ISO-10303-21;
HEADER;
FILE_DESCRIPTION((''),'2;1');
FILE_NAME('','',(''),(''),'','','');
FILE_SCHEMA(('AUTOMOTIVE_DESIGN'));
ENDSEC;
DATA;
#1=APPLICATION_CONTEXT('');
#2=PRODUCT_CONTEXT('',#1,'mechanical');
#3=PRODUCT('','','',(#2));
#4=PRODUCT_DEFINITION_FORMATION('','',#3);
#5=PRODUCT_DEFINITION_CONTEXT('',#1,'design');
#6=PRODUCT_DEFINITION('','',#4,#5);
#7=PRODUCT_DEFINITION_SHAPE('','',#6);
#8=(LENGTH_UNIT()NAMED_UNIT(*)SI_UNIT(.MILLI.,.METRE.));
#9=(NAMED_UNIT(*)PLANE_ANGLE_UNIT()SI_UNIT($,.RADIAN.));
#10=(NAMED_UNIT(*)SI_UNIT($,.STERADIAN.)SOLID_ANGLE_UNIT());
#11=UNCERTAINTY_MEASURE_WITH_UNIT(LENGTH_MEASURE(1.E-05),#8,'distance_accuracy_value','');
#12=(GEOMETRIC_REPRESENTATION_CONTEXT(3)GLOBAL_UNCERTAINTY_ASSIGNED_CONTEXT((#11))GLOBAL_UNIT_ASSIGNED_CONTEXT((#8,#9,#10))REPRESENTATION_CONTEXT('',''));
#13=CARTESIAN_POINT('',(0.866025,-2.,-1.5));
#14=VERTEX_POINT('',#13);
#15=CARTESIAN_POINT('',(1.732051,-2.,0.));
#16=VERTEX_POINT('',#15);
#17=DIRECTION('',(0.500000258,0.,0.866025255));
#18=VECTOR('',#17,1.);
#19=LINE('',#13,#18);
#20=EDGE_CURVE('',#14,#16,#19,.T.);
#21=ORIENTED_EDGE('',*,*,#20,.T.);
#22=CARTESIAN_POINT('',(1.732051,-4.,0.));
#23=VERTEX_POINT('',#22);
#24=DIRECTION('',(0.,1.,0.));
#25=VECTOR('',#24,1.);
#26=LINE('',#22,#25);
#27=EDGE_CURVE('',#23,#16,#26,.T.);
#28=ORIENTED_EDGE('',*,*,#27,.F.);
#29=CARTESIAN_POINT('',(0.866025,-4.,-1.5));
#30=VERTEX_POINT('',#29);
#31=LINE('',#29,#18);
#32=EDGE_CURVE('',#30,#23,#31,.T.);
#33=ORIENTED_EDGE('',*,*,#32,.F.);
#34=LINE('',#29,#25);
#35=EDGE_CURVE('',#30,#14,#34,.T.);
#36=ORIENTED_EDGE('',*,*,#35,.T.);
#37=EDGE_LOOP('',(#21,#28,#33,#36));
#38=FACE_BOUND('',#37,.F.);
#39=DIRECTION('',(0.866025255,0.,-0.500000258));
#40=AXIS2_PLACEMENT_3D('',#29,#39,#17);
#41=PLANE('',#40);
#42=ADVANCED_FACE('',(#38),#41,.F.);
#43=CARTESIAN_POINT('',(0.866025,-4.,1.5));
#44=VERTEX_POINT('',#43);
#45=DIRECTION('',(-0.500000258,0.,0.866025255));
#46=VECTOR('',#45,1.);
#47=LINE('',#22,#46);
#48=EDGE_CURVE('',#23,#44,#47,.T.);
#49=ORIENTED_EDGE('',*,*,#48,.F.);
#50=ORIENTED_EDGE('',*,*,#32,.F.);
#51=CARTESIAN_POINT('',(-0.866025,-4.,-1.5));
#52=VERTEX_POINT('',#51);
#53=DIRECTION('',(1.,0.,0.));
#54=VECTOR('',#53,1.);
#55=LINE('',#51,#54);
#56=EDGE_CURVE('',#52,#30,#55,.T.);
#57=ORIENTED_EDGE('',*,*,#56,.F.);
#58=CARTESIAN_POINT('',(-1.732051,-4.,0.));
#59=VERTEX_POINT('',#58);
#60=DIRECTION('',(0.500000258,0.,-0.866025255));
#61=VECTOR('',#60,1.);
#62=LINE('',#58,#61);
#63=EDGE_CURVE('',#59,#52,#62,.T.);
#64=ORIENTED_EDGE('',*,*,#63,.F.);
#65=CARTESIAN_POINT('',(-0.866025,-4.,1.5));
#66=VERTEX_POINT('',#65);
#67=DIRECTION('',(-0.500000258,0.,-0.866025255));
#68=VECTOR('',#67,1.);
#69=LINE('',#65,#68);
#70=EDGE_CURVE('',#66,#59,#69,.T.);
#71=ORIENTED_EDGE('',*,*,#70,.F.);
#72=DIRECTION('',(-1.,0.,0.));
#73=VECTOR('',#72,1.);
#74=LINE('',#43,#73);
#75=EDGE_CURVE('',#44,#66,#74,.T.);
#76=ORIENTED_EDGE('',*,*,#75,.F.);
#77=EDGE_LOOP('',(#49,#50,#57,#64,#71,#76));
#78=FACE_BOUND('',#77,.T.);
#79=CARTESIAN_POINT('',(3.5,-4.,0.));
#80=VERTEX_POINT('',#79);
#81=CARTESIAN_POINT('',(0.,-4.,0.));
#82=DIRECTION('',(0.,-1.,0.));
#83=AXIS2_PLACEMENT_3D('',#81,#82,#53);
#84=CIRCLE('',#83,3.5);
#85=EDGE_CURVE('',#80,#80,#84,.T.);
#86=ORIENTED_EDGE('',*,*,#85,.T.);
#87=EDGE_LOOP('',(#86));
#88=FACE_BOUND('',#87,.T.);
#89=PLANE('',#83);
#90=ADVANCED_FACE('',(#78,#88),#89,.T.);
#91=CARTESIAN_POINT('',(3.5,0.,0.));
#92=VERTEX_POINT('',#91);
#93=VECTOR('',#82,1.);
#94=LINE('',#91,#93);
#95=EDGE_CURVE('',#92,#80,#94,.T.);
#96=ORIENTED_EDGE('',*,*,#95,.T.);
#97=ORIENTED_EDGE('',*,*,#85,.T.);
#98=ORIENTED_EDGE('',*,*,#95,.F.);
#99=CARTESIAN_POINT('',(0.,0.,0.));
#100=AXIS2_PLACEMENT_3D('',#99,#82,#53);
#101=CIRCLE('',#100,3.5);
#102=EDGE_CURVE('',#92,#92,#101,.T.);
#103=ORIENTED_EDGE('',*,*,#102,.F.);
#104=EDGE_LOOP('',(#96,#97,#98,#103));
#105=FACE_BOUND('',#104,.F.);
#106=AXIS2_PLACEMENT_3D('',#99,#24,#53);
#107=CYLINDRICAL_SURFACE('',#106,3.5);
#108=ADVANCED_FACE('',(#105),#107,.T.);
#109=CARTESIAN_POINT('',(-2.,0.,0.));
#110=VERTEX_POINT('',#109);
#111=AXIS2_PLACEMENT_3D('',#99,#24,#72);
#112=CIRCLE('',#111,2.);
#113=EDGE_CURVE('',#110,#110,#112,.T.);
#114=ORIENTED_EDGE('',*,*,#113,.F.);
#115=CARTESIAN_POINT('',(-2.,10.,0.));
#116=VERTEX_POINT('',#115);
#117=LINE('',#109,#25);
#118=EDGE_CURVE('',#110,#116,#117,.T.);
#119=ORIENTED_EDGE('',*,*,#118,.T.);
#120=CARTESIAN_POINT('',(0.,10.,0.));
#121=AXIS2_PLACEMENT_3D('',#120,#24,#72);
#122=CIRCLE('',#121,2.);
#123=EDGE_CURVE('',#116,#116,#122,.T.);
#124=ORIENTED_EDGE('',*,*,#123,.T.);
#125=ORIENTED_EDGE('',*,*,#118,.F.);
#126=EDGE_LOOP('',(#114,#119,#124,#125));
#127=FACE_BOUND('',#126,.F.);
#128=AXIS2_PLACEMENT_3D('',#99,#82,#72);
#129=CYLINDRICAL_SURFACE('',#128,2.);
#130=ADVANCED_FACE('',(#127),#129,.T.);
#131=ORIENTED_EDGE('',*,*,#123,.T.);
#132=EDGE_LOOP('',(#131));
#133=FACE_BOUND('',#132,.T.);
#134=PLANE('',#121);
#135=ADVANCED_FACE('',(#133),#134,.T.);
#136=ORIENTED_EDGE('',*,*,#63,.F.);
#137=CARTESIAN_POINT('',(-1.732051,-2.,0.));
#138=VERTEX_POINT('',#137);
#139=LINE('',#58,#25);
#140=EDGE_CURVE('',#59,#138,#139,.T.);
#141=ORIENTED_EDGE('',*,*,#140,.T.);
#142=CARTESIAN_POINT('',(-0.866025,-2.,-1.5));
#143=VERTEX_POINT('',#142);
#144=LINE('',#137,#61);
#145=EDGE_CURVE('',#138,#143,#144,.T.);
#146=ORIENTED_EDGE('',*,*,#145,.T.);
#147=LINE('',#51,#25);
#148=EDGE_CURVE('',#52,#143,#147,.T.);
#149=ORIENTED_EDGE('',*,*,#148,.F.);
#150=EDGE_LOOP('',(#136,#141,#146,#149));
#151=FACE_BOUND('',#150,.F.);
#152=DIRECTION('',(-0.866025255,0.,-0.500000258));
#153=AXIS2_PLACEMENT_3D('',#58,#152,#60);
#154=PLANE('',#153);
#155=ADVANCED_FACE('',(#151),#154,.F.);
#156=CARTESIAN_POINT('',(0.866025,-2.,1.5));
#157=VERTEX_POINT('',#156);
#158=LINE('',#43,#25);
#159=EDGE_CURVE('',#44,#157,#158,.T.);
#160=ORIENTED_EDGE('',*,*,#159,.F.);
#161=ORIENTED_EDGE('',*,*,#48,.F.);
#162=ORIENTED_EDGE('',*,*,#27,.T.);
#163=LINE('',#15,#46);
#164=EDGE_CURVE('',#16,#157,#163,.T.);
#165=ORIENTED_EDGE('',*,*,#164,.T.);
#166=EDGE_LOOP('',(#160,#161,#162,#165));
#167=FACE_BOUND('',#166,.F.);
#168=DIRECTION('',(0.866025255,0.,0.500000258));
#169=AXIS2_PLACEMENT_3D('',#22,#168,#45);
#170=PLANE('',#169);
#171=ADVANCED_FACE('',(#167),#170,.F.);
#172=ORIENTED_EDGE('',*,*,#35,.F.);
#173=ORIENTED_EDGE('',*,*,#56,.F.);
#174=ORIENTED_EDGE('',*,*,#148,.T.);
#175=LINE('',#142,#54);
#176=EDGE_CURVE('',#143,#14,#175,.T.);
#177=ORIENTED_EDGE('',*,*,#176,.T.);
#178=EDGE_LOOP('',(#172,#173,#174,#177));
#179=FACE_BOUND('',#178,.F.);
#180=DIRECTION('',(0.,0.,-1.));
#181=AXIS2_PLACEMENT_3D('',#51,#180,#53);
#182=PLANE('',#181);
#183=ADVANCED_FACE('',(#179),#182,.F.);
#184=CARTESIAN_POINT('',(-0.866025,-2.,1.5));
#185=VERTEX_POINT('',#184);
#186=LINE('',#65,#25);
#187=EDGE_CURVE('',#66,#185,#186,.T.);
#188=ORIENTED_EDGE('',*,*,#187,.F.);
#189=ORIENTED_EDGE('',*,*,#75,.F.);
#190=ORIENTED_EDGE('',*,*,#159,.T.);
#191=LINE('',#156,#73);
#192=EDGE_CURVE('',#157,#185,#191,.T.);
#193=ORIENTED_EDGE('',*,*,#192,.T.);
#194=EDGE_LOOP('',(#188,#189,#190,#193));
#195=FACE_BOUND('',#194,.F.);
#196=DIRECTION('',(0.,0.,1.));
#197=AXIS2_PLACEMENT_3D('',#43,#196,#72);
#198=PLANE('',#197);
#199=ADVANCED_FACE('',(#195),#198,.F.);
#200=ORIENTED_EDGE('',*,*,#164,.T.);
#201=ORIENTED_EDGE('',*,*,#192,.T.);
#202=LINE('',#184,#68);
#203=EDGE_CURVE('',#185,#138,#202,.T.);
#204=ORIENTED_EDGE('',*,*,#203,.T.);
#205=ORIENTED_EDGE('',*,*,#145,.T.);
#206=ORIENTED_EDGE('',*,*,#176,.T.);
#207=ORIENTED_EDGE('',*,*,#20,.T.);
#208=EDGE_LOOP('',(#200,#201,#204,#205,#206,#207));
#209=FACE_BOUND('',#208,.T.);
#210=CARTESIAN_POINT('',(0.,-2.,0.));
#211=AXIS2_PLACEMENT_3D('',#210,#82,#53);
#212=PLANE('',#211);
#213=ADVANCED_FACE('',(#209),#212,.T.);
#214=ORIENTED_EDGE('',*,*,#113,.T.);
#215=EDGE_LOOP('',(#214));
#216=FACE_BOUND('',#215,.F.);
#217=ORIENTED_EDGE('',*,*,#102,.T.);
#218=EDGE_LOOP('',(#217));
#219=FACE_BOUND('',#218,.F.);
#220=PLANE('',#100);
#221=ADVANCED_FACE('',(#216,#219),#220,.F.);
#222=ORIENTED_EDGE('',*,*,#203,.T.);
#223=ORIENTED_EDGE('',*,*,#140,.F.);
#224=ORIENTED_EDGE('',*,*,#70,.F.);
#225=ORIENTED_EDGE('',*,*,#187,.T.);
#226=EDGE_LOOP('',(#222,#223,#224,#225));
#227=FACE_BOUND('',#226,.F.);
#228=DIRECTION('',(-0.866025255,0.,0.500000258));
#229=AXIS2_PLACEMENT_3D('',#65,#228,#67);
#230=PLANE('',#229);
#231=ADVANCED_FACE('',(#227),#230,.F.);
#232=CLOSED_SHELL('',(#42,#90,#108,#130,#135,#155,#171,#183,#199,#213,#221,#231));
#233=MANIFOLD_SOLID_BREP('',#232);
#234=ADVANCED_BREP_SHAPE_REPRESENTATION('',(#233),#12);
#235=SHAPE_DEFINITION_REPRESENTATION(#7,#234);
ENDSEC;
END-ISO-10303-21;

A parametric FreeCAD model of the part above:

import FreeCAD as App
import Part
import Sketcher

V = App.Vector
Q = App.Units.Quantity

doc = App.newDocument("Part")
body = doc.addObject("PartDesign::Body", "Body")

# Sketch on XZ plane
sketch1 = body.newObject("Sketcher::SketchObject", "Sketch")
sketch1.AttachmentSupport = (doc.getObject("XZ_Plane"), [""])
sketch1.MapMode = "FlatFace"
sketch1.addGeometry(Part.Circle(V(0, 0, 0), V(0, 0, 1), 3.5), False)
sketch1.addConstraint([
    Sketcher.Constraint("Coincident", 0, 3, -1, 1),
    Sketcher.Constraint("Diameter", 0, 7.0),
])
pad1 = body.newObject("PartDesign::Pad", "Pad")
pad1.Profile = sketch1
pad1.Length = 4

# Sketch on XZ plane
sketch2 = body.newObject("Sketcher::SketchObject", "Sketch001")
sketch2.AttachmentSupport = (doc.getObject("XZ_Plane"), [""])
sketch2.MapMode = "FlatFace"
sketch2.addGeometry(Part.Circle(V(0, 0, 0), V(0, 0, 1), 2), False)
sketch2.addConstraint([
    Sketcher.Constraint("Coincident", 0, 3, -1, 1),
    Sketcher.Constraint("Diameter", 0, 4.0),
])
pad2 = body.newObject("PartDesign::Pad", "Pad001")
pad2.Profile = sketch2
pad2.Length = 10
pad2.Reversed = True

# Sketch on XZ plane
sketch3 = body.newObject("Sketcher::SketchObject", "Sketch002")
sketch3.AttachmentSupport = (doc.getObject("XZ_Plane"), [""])
sketch3.MapMode = "FlatFace"
sketch3.AttachmentOffset = App.Placement(V(0, 0, 4), App.Rotation())
sketch3.addGeometry([
    Part.LineSegment(V(0.9, 1.5, 0), V(-0.9, 1.5, 0)),  # 0
    Part.LineSegment(V(-0.9, 1.5, 0), V(-1.7, 0, 0)),  # 1
    Part.LineSegment(V(-1.7, 0, 0), V(-0.9, -1.5, 0)),  # 2
    Part.LineSegment(V(-0.9, -1.5, 0), V(0.9, -1.5, 0)),  # 3
    Part.LineSegment(V(0.9, -1.5, 0), V(1.7, 0, 0)),  # 4
    Part.LineSegment(V(1.7, 0, 0), V(0.9, 1.5, 0)),  # 5
], False)
sketch3.addConstraint([
    Sketcher.Constraint("Coincident", 0, 2, 1, 1),
    Sketcher.Constraint("Coincident", 1, 2, 2, 1),
    Sketcher.Constraint("Coincident", 2, 2, 3, 1),
    Sketcher.Constraint("Coincident", 3, 2, 4, 1),
    Sketcher.Constraint("Coincident", 4, 2, 5, 1),
    Sketcher.Constraint("Coincident", 5, 2, 0, 1),
    Sketcher.Constraint("Horizontal", 0),
    Sketcher.Constraint("Horizontal", 3),
    Sketcher.Constraint("Symmetric", 0, 2, 3, 2, -1, 1),
    Sketcher.Constraint("Symmetric", 1, 2, 4, 2, -1, 1),
    Sketcher.Constraint("PointOnObject", 1, 2, -1),
    Sketcher.Constraint("Parallel", 2, 5),
    Sketcher.Constraint("Vertical", 0, 2, 2, 2),
    Sketcher.Constraint("Angle", 1, Q("-120.000017 deg")),
    Sketcher.Constraint("DistanceY", 2, 2, 0, 2, 3.0),
    Sketcher.Constraint("DistanceX", 0, 2, 0, 1, 1.73205),
])
pocket1 = body.newObject("PartDesign::Pocket", "Pocket")
pocket1.Profile = sketch3
pocket1.Length = 2

doc.recompute()
